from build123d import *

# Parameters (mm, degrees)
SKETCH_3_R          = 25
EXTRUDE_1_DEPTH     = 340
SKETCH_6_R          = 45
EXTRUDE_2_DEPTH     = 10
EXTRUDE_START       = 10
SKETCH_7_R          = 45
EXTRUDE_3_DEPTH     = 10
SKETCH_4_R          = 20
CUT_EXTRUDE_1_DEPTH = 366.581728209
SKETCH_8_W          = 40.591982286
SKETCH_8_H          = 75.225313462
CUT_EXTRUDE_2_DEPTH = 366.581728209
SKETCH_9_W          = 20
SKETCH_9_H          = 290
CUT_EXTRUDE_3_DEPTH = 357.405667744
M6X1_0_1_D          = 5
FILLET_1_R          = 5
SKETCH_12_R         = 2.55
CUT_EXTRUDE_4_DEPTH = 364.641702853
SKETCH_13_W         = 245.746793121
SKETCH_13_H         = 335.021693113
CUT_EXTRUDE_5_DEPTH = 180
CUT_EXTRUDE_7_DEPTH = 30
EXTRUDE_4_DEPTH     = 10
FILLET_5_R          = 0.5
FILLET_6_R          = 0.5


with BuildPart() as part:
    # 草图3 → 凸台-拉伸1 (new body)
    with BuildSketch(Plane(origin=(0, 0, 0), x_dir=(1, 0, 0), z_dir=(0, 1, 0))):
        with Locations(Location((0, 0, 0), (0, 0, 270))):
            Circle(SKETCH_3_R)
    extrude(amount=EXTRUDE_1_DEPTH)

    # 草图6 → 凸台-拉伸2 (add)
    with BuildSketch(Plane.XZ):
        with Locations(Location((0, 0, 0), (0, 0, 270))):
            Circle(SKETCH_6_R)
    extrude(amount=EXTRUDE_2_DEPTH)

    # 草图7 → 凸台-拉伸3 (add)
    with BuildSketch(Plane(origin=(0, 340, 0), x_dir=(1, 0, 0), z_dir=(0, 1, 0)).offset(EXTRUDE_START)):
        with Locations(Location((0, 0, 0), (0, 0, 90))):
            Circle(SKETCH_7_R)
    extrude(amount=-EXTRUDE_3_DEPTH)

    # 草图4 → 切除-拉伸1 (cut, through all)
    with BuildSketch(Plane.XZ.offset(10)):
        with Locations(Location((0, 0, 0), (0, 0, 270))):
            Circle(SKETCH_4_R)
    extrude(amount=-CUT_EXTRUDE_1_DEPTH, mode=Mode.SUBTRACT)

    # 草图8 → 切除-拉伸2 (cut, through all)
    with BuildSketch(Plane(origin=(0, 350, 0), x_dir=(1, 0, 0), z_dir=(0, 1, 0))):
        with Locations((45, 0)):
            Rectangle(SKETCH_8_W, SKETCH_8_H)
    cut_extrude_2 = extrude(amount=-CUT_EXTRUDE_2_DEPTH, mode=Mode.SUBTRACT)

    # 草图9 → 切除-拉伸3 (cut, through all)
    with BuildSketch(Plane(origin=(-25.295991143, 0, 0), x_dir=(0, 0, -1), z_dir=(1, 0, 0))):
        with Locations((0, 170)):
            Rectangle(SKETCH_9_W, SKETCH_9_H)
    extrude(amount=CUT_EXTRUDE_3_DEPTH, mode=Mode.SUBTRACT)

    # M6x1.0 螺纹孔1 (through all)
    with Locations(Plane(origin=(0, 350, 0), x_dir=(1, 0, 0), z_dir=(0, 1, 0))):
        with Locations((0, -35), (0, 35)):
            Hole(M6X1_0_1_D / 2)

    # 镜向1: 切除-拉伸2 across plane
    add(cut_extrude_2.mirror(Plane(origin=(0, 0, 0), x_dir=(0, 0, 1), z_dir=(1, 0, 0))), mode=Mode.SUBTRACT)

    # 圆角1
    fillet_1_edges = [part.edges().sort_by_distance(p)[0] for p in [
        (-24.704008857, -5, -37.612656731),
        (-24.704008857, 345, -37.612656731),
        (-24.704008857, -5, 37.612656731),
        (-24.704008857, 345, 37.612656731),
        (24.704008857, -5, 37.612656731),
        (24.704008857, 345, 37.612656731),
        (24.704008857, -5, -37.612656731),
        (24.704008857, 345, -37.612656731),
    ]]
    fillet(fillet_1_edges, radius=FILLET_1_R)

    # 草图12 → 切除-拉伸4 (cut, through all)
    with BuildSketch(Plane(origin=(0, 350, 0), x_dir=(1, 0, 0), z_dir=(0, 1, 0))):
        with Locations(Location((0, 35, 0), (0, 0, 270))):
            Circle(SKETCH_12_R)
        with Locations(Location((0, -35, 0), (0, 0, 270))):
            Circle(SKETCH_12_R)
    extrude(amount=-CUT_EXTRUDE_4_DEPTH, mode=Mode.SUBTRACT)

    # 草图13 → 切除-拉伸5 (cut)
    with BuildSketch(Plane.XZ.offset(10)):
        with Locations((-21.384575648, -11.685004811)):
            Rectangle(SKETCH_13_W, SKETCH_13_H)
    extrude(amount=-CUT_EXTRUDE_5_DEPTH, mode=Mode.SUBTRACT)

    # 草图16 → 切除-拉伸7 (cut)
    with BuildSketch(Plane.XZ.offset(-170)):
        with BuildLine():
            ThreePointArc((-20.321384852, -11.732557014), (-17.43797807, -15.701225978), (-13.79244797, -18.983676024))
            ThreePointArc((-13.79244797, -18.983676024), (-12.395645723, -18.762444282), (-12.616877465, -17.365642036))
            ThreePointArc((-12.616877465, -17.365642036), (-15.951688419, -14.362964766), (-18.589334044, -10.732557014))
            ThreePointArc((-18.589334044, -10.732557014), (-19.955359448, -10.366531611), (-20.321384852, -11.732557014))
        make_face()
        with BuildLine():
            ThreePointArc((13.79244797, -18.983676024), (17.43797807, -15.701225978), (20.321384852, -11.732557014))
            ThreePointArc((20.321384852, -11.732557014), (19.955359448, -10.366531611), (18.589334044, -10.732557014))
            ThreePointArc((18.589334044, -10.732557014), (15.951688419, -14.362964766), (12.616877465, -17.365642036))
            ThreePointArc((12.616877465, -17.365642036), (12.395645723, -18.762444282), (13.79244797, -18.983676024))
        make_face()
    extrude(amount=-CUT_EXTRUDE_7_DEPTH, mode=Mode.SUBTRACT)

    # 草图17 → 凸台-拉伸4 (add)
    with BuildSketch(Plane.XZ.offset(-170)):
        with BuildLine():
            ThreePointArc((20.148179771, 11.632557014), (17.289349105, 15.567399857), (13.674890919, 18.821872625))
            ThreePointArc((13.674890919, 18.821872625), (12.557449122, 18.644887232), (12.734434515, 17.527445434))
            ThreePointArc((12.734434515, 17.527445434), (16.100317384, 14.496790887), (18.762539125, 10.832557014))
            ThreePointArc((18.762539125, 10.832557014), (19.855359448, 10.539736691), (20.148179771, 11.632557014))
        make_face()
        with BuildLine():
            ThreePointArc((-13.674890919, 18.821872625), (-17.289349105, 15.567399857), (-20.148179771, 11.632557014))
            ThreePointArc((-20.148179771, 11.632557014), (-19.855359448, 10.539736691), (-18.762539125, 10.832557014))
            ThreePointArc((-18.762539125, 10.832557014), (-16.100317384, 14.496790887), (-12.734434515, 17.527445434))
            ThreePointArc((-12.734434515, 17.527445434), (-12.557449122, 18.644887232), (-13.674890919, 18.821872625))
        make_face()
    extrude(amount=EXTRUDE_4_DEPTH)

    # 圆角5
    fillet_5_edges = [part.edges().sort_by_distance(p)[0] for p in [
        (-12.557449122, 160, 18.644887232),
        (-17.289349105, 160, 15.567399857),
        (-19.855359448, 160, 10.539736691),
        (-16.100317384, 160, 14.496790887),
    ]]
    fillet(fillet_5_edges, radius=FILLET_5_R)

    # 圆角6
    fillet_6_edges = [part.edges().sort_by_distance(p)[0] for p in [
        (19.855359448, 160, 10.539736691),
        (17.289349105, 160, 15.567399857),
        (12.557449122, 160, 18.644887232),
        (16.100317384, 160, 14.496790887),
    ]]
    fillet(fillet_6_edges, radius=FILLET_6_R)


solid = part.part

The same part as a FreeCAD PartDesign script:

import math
import FreeCAD as App
import Part
import Sketcher
from FreeCAD import Vector
Q = App.Units.Quantity


def edges_at(feature, points):
    """Names of the edges that pass closest to the given points."""
    edges = feature.Shape.Edges
    near = lambda p: min(range(len(edges)), key=lambda i: edges[i].distToShape(Part.Vertex(*p))[0])
    return sorted({f"Edge{near(p) + 1}" for p in points})


def add_polygon(sketch, points):
    """Adds a closed chain of lines whose ends are joined by coincident constraints."""
    first, n = sketch.GeometryCount, len(points)
    for a, b in zip(points, points[1:] + points[:1]):
        sketch.addGeometry(Part.LineSegment(App.Vector(*a, 0), App.Vector(*b, 0)), False)
    for i in range(n):
        sketch.addConstraint(Sketcher.Constraint("Coincident", first + i, 2, first + (i + 1) % n, 1))

doc = App.newDocument("Part")
params = doc.addObject("Spreadsheet::Sheet", "Params")
for row, (alias, value) in enumerate([
    ("sketch1_diameter", "50 mm"),
    ("pad1_length", "340 mm"),
    ("sketch2_diameter", "90 mm"),
    ("pad2_length", "10 mm"),
    ("sketch3_diameter", "90 mm"),
    ("pad3_length", "10 mm"),
    ("sketch4_diameter", "40 mm"),
    ("sketch6_width", "290 mm"),
    ("sketch6_height", "20 mm"),
    ("sketch7_diameter", "5 mm"),
    ("hole_diameter", "5 mm"),
    ("fillet_radius", "5 mm"),
    ("sketch8_diameter", "5.1 mm"),
    ("pocket5_length", "180 mm"),
    ("sketch10_radius", "1 mm"),
    ("pocket6_length", "30 mm"),
    ("sketch11_radius", "0.8 mm"),
    ("sketch11_height", "0.4 mm"),
    ("pad4_length", "10 mm"),
    ("fillet2_radius", "0.5 mm"),
    ("fillet3_radius", "0.5 mm"),
], start=1):
    params.set(f"A{row}", alias)
    params.set(f"B{row}", "=" + value)
    params.setAlias(f"B{row}", alias)

body = doc.addObject("PartDesign::Body", "Body")

sketch1 = body.newObject("Sketcher::SketchObject", "Sketch")
sketch1.AttachmentSupport = (doc.getObject("XZ_Plane"), [""])
sketch1.MapMode = "FlatFace"
sketch1.addGeometry(Part.Circle(Vector(0, 0, 0), Vector(0, 0, 1), 25), False)
sketch1.addConstraint([
    Sketcher.Constraint("Coincident", 0, 3, -1, 1),
    Sketcher.Constraint("Diameter", 0, Q("50 mm")),
])
sketch1.setExpression("Constraints[1]", "Params.sketch1_diameter")
pad1 = body.newObject("PartDesign::Pad", "Pad")
pad1.Profile = sketch1
pad1.setExpression("Length", "Params.pad1_length")
pad1.Reversed = True

sketch2 = body.newObject("Sketcher::SketchObject", "Sketch001")
sketch2.AttachmentSupport = (doc.getObject("XZ_Plane"), [""])
sketch2.MapMode = "FlatFace"
sketch2.addGeometry(Part.Circle(Vector(0, 0, 0), Vector(0, 0, 1), 45), False)
sketch2.addConstraint([
    Sketcher.Constraint("Coincident", 0, 3, -1, 1),
    Sketcher.Constraint("Diameter", 0, Q("90 mm")),
])
sketch2.setExpression("Constraints[1]", "Params.sketch2_diameter")
pad2 = body.newObject("PartDesign::Pad", "Pad001")
pad2.Profile = sketch2
pad2.setExpression("Length", "Params.pad2_length")

sketch3 = body.newObject("Sketcher::SketchObject", "Sketch002")
sketch3.AttachmentSupport = (doc.getObject("XZ_Plane"), [""])
sketch3.MapMode = "FlatFace"
sketch3.AttachmentOffset = App.Placement(Vector(0, 0, -350), App.Rotation())
sketch3.addGeometry(Part.Circle(Vector(0, 0, 0), Vector(0, 0, 1), 45), False)
sketch3.addConstraint([
    Sketcher.Constraint("Coincident", 0, 3, -1, 1),
    Sketcher.Constraint("Diameter", 0, Q("90 mm")),
])
sketch3.setExpression("Constraints[1]", "Params.sketch3_diameter")
pad3 = body.newObject("PartDesign::Pad", "Pad002")
pad3.Profile = sketch3
pad3.setExpression("Length", "Params.pad3_length")

sketch4 = body.newObject("Sketcher::SketchObject", "Sketch003")
sketch4.AttachmentSupport = (doc.getObject("XZ_Plane"), [""])
sketch4.MapMode = "FlatFace"
sketch4.AttachmentOffset = App.Placement(Vector(0, 0, 10), App.Rotation())
sketch4.addGeometry(Part.Circle(Vector(0, 0, 0), Vector(0, 0, 1), 20), False)
sketch4.addConstraint([
    Sketcher.Constraint("Coincident", 0, 3, -1, 1),
    Sketcher.Constraint("Diameter", 0, Q("40 mm")),
])
sketch4.setExpression("Constraints[1]", "Params.sketch4_diameter")
pocket1 = body.newObject("PartDesign::Pocket", "Pocket")
pocket1.Profile = sketch4
pocket1.Type = "ThroughAll"

sketch5 = body.newObject("Sketcher::SketchObject", "Sketch004")
sketch5.AttachmentSupport = (doc.getObject("XZ_Plane"), [""])
sketch5.MapMode = "FlatFace"
sketch5.AttachmentOffset = App.Placement(Vector(0, 0, -350), App.Rotation())
add_polygon(sketch5, [(25, -38), (25, 38), (65, 38), (65, -38)])
sketch5.addConstraint([
    Sketcher.Constraint("Vertical", 0),
    Sketcher.Constraint("Horizontal", 1),
    Sketcher.Constraint("Vertical", 2),
    Sketcher.Constraint("Horizontal", 3),
    Sketcher.Constraint("DistanceX", 1, 1, 1, 2, Q("40.591982 mm")),
    Sketcher.Constraint("DistanceY", 0, 1, 0, 2, Q("75.225313 mm")),
    Sketcher.Constraint("DistanceX", -1, 1, 0, 2, Q("24.704009 mm")),
    Sketcher.Constraint("DistanceY", -1, 1, 0, 2, Q("37.612657 mm")),
])
pocket2 = body.newObject("PartDesign::Pocket", "Pocket001")
pocket2.Profile = sketch5
pocket2.Type = "ThroughAll"
pocket2.Reversed = True

sketch6 = body.newObject("Sketcher::SketchObject", "Sketch005")
sketch6.AttachmentSupport = (doc.getObject("YZ_Plane"), [""])
sketch6.MapMode = "FlatFace"
sketch6.AttachmentOffset = App.Placement(Vector(0, 0, -25.295991), App.Rotation())
add_polygon(sketch6, [(315, 10), (25, 10), (25, -10), (315, -10)])
sketch6.addConstraint([
    Sketcher.Constraint("Horizontal", 0),
    Sketcher.Constraint("Vertical", 1),
    Sketcher.Constraint("Horizontal", 2),
    Sketcher.Constraint("Vertical", 3),
    Sketcher.Constraint("DistanceX", 0, 2, 0, 1, Q("290 mm")),
    Sketcher.Constraint("DistanceY", 1, 2, 1, 1, Q("20 mm")),
    Sketcher.Constraint("DistanceX", -1, 1, 0, 2, Q("25 mm")),
    Sketcher.Constraint("DistanceY", -1, 1, 0, 2, Q("10 mm")),
])
sketch6.setExpression("Constraints[8]", "Params.sketch6_width")
sketch6.setExpression("Constraints[9]", "Params.sketch6_height")
pocket3 = body.newObject("PartDesign::Pocket", "Pocket002")
pocket3.Profile = sketch6
pocket3.Type = "ThroughAll"
pocket3.Reversed = True

sketch7 = body.newObject("Sketcher::SketchObject", "Sketch006")
sketch7.AttachmentSupport = (doc.getObject("XZ_Plane"), [""])
sketch7.MapMode = "FlatFace"
sketch7.AttachmentOffset = App.Placement(Vector(0, 0, -350), App.Rotation())
sketch7.addGeometry([
    Part.Circle(Vector(0, 35, 0), Vector(0, 0, 1), 2.5),
    Part.Circle(Vector(0, -35, 0), Vector(0, 0, 1), 2.5),
], False)
sketch7.addConstraint([
    Sketcher.Constraint("Equal", 0, 1),
    Sketcher.Constraint("Symmetric", 0, 3, 1, 3, -1, 1),
    Sketcher.Constraint("PointOnObject", 0, 3, -2),
    Sketcher.Constraint("Diameter", 0, Q("5 mm")),
    Sketcher.Constraint("DistanceY", -1, 1, 0, 3, Q("35 mm")),
])
sketch7.setExpression("Constraints[3]", "Params.sketch7_diameter")
doc.recompute()
hole = body.newObject("PartDesign::Hole", "Hole")
hole.Profile = sketch7
hole.ThreadType = "None"
hole.setExpression("Diameter", "Params.hole_diameter")
hole.DepthType = "ThroughAll"
hole.Reversed = True
doc.recompute()

mirrored = body.newObject("PartDesign::Mirrored", "Mirrored")
mirrored.Originals = [pocket2]
mirrored.MirrorPlane = (doc.getObject("YZ_Plane"), [""])
body.Tip = mirrored
doc.recompute()

fillet = body.newObject("PartDesign::Fillet", "Fillet")
fillet.Base = (mirrored, edges_at(mirrored, [
    (-24.704, -5, -37.613),
    (-24.704, 345, -37.613),
    (-24.704, -5, 37.613),
    (-24.704, 345, 37.613),
    (24.704, -5, 37.613),
    (24.704, 345, 37.613),
    (24.704, -5, -37.613),
    (24.704, 345, -37.613),
]))
fillet.setExpression("Radius", "Params.fillet_radius")

sketch8 = body.newObject("Sketcher::SketchObject", "Sketch007")
sketch8.AttachmentSupport = (doc.getObject("XZ_Plane"), [""])
sketch8.MapMode = "FlatFace"
sketch8.AttachmentOffset = App.Placement(Vector(0, 0, -350), App.Rotation())
sketch8.addGeometry([
    Part.Circle(Vector(0, -35, 0), Vector(0, 0, 1), 2.5),
    Part.Circle(Vector(0, 35, 0), Vector(0, 0, 1), 2.5),
], False)
sketch8.addConstraint([
    Sketcher.Constraint("Equal", 0, 1),
    Sketcher.Constraint("Symmetric", 0, 3, 1, 3, -1, 1),
    Sketcher.Constraint("PointOnObject", 0, 3, -2),
    Sketcher.Constraint("Diameter", 0, Q("5.1 mm")),
    Sketcher.Constraint("DistanceY", 0, 3, -1, 1, Q("35 mm")),
])
sketch8.setExpression("Constraints[3]", "Params.sketch8_diameter")
pocket4 = body.newObject("PartDesign::Pocket", "Pocket003")
pocket4.Profile = sketch8
pocket4.Type = "ThroughAll"
pocket4.Reversed = True

sketch9 = body.newObject("Sketcher::SketchObject", "Sketch008")
sketch9.AttachmentSupport = (doc.getObject("XZ_Plane"), [""])
sketch9.MapMode = "FlatFace"
sketch9.AttachmentOffset = App.Placement(Vector(0, 0, 10), App.Rotation())
add_polygon(sketch9, [(-144, 156), (-144, -179), (101, -179), (101, 156)])
sketch9.addConstraint([
    Sketcher.Constraint("Vertical", 0),
    Sketcher.Constraint("Horizontal", 1),
    Sketcher.Constraint("Vertical", 2),
    Sketcher.Constraint("Horizontal", 3),
    Sketcher.Constraint("DistanceX", 1, 1, 1, 2, Q("245.746793 mm")),
    Sketcher.Constraint("DistanceY", 0, 2, 0, 1, Q("335.021693 mm")),
    Sketcher.Constraint("DistanceY", 0, 2, -1, 1, Q("179.195851 mm")),
    Sketcher.Constraint("DistanceX", -1, 1, 1, 2, Q("101.488821 mm")),
])
pocket5 = body.newObject("PartDesign::Pocket", "Pocket004")
pocket5.Profile = sketch9
pocket5.setExpression("Length", "Params.pocket5_length")

sketch10 = body.newObject("Sketcher::SketchObject", "Sketch009")
sketch10.AttachmentSupport = (doc.getObject("XZ_Plane"), [""])
sketch10.MapMode = "FlatFace"
sketch10.AttachmentOffset = App.Placement(Vector(0, 0, -170), App.Rotation())
sketch10.addGeometry([
    Part.ArcOfCircle(Part.Circle(Vector(0, 0, 0), Vector(0, 0, 1), 23.5), math.radians(-150), math.radians(-126)),
    Part.ArcOfCircle(Part.Circle(Vector(-13.2, -18.2, 0), Vector(0, 0, 1), 1), math.radians(-126), math.radians(54)),
    Part.ArcOfCircle(Part.Circle(Vector(0, 0, 0), Vector(0, 0, 1), 21.5), math.radians(-150), math.radians(-126)),
    Part.ArcOfCircle(Part.Circle(Vector(-19.5, -11.2, 0), Vector(0, 0, 1), 1), math.radians(30), math.radians(210)),
    Part.ArcOfCircle(Part.Circle(Vector(0, 0, 0), Vector(0, 0, 1), 23.5), math.radians(-54), math.radians(-30)),
    Part.ArcOfCircle(Part.Circle(Vector(19.5, -11.2, 0), Vector(0, 0, 1), 1), math.radians(-30), math.radians(150)),
    Part.ArcOfCircle(Part.Circle(Vector(0, 0, 0), Vector(0, 0, 1), 21.5), math.radians(-54), math.radians(-30)),
    Part.ArcOfCircle(Part.Circle(Vector(13.2, -18.2, 0), Vector(0, 0, 1), 1), math.radians(126), math.radians(306)),
], False)
sketch10.addConstraint([
    Sketcher.Constraint("Tangent", 0, 2, 1, 1),
    Sketcher.Constraint("Tangent", 1, 2, 2, 2),
    Sketcher.Constraint("Tangent", 2, 1, 3, 1),
    Sketcher.Constraint("Tangent", 3, 2, 0, 1),
    Sketcher.Constraint("Tangent", 4, 2, 5, 1),
    Sketcher.Constraint("Tangent", 5, 2, 6, 2),
    Sketcher.Constraint("Tangent", 6, 1, 7, 1),
    Sketcher.Constraint("Tangent", 7, 2, 4, 1),
    Sketcher.Constraint("Coincident", 0, 3, -1, 1),
    Sketcher.Constraint("Coincident", 2, 3, -1, 1),
    Sketcher.Constraint("Coincident", 4, 3, -1, 1),
    Sketcher.Constraint("Coincident", 6, 3, -1, 1),
    Sketcher.Constraint("Equal", 0, 4),
    Sketcher.Constraint("Equal", 3, 5),
    Sketcher.Constraint("Horizontal", 3, 3, 5, 3),
    Sketcher.Constraint("Horizontal", 1, 3, 7, 3),
    Sketcher.Constraint("Radius", 1, Q("1 mm")),
    Sketcher.Constraint("DistanceY", 3, 2, 2, 1, Q("1 mm")),
    Sketcher.Constraint("Radius", 0, Q("23.465114 mm")),
    Sketcher.Constraint("DistanceY", 1, 3, -1, 1, Q("18.174659 mm")),
])
sketch10.setExpression("Constraints[16]", "Params.sketch10_radius")
pocket6 = body.newObject("PartDesign::Pocket", "Pocket005")
pocket6.Profile = sketch10
pocket6.setExpression("Length", "Params.pocket6_length")

sketch11 = body.newObject("Sketcher::SketchObject", "Sketch010")
sketch11.AttachmentSupport = (doc.getObject("XZ_Plane"), [""])
sketch11.MapMode = "FlatFace"
sketch11.AttachmentOffset = App.Placement(Vector(0, 0, -170), App.Rotation())
sketch11.addGeometry([
    Part.ArcOfCircle(Part.Circle(Vector(0, 0, 0), Vector(0, 0, 1), 23.3), math.radians(30), math.radians(54)),
    Part.ArcOfCircle(Part.Circle(Vector(13.2, 18.2, 0), Vector(0, 0, 1), 0.8), math.radians(54), math.radians(234)),
    Part.ArcOfCircle(Part.Circle(Vector(0, 0, 0), Vector(0, 0, 1), 21.7), math.radians(30), math.radians(54)),
    Part.ArcOfCircle(Part.Circle(Vector(19.5, 11.2, 0), Vector(0, 0, 1), 0.8), math.radians(-150), math.radians(30)),
    Part.ArcOfCircle(Part.Circle(Vector(0, 0, 0), Vector(0, 0, 1), 23.3), math.radians(126), math.radians(150)),
    Part.ArcOfCircle(Part.Circle(Vector(-19.5, 11.2, 0), Vector(0, 0, 1), 0.8), math.radians(150), math.radians(330)),
    Part.ArcOfCircle(Part.Circle(Vector(0, 0, 0), Vector(0, 0, 1), 21.7), math.radians(126), math.radians(150)),
    Part.ArcOfCircle(Part.Circle(Vector(-13.2, 18.2, 0), Vector(0, 0, 1), 0.8), math.radians(-54), math.radians(126)),
], False)
sketch11.addConstraint([
    Sketcher.Constraint("Tangent", 0, 2, 1, 1),
    Sketcher.Constraint("Tangent", 1, 2, 2, 2),
    Sketcher.Constraint("Tangent", 2, 1, 3, 1),
    Sketcher.Constraint("Tangent", 3, 2, 0, 1),
    Sketcher.Constraint("Tangent", 4, 2, 5, 1),
    Sketcher.Constraint("Tangent", 5, 2, 6, 2),
    Sketcher.Constraint("Tangent", 6, 1, 7, 1),
    Sketcher.Constraint("Tangent", 7, 2, 4, 1),
    Sketcher.Constraint("Coincident", 0, 3, -1, 1),
    Sketcher.Constraint("Coincident", 2, 3, -1, 1),
    Sketcher.Constraint("Coincident", 4, 3, -1, 1),
    Sketcher.Constraint("Coincident", 6, 3, -1, 1),
    Sketcher.Constraint("Equal", 0, 4),
    Sketcher.Constraint("Equal", 3, 5),
    Sketcher.Constraint("Horizontal", 3, 3, 5, 3),
    Sketcher.Constraint("Horizontal", 1, 3, 7, 3),
    Sketcher.Constraint("Radius", 1, Q("0.8 mm")),
    Sketcher.Constraint("DistanceY", 3, 3, 3, 2, Q("0.4 mm")),
    Sketcher.Constraint("Radius", 0, Q("23.265114 mm")),
    Sketcher.Constraint("DistanceY", -1, 1, 1, 3, Q("18.174659 mm")),
])
sketch11.setExpression("Constraints[16]", "Params.sketch11_radius")
sketch11.setExpression("Constraints[17]", "Params.sketch11_height")
pad4 = body.newObject("PartDesign::Pad", "Pad003")
pad4.Profile = sketch11
pad4.setExpression("Length", "Params.pad4_length")
doc.recompute()

fillet2 = body.newObject("PartDesign::Fillet", "Fillet001")
fillet2.Base = (pad4, edges_at(pad4, [
    (-12.557, 160, 18.645),
    (-17.289, 160, 15.567),
    (-19.855, 160, 10.54),
    (-16.1, 160, 14.497),
]))
fillet2.setExpression("Radius", "Params.fillet2_radius")
doc.recompute()

fillet3 = body.newObject("PartDesign::Fillet", "Fillet002")
fillet3.Base = (fillet2, edges_at(fillet2, [
    (19.855, 160, 10.54),
    (17.289, 160, 15.567),
    (12.557, 160, 18.645),
    (16.1, 160, 14.497),
]))
fillet3.setExpression("Radius", "Params.fillet3_radius")

doc.recompute()
